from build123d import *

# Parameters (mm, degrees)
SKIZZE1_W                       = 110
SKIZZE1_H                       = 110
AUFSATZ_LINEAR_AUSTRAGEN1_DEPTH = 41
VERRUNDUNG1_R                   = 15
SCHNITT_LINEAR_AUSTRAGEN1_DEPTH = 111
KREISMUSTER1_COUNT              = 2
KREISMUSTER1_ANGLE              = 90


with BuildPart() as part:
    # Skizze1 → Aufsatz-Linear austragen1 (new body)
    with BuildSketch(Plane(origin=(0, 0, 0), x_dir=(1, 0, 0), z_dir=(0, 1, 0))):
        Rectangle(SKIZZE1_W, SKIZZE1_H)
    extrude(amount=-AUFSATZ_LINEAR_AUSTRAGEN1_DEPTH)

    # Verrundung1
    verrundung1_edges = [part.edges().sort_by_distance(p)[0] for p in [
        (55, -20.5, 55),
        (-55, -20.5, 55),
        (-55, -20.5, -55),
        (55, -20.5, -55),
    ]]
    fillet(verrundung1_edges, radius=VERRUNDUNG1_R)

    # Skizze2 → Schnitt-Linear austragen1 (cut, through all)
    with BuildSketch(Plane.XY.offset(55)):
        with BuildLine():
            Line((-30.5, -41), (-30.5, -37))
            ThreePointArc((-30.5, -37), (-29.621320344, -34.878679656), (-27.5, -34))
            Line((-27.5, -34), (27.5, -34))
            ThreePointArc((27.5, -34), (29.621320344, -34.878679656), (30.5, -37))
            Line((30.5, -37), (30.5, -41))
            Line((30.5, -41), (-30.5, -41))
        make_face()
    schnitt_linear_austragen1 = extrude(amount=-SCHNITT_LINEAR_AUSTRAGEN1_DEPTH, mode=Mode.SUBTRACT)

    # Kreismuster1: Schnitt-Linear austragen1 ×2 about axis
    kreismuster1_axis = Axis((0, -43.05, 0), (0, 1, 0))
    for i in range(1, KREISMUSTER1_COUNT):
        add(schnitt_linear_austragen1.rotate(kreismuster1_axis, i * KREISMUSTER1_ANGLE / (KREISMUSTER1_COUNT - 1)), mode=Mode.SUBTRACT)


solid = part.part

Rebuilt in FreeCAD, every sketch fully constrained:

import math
import FreeCAD as App
import Part
import Sketcher


def edges_at(feature, points):
    """Names of the edges that pass closest to the given points."""
    edges = feature.Shape.Edges
    near = lambda p: min(range(len(edges)), key=lambda i: edges[i].distToShape(Part.Vertex(*p))[0])
    return sorted({f"Edge{near(p) + 1}" for p in points})

doc = App.newDocument("Part")
body = doc.addObject("PartDesign::Body", "Body")

sketch1 = body.newObject("Sketcher::SketchObject", "Sketch")
sketch1.AttachmentSupport = (doc.getObject("XZ_Plane"), [""])
sketch1.MapMode = "FlatFace"
sketch1.addGeometry(Part.LineSegment(App.Vector(-55, -55, 0), App.Vector(-55, 55, 0)), False)
sketch1.addGeometry(Part.LineSegment(App.Vector(-55, 55, 0), App.Vector(55, 55, 0)), False)
sketch1.addGeometry(Part.LineSegment(App.Vector(55, 55, 0), App.Vector(55, -55, 0)), False)
sketch1.addGeometry(Part.LineSegment(App.Vector(55, -55, 0), App.Vector(-55, -55, 0)), False)
sketch1.addConstraint(Sketcher.Constraint("Coincident", 0, 2, 1, 1))
sketch1.addConstraint(Sketcher.Constraint("Coincident", 1, 2, 2, 1))
sketch1.addConstraint(Sketcher.Constraint("Coincident", 2, 2, 3, 1))
sketch1.addConstraint(Sketcher.Constraint("Coincident", 3, 2, 0, 1))
sketch1.addConstraint(Sketcher.Constraint("Vertical", 0))
sketch1.addConstraint(Sketcher.Constraint("Horizontal", 1))
sketch1.addConstraint(Sketcher.Constraint("Vertical", 2))
sketch1.addConstraint(Sketcher.Constraint("Horizontal", 3))
sketch1.addConstraint(Sketcher.Constraint("Symmetric", 0, 2, 2, 2, -1, 1))
sketch1.addConstraint(Sketcher.Constraint("Equal", 3, 0))
sketch1.addConstraint(Sketcher.Constraint("DistanceX", 1, 1, 1, 2, 110.0))
pad1 = body.newObject("PartDesign::Pad", "Pad")
pad1.Profile = sketch1
pad1.Length = 41
doc.recompute()

fillet = body.newObject("PartDesign::Fillet", "Fillet")
fillet.Base = (pad1, edges_at(pad1, [
    (55, -20.5, 55),
    (-55, -20.5, 55),
    (-55, -20.5, -55),
    (55, -20.5, -55),
]))
fillet.Radius = 15

sketch2 = body.newObject("Sketcher::SketchObject", "Sketch001")
sketch2.AttachmentSupport = (doc.getObject("XY_Plane"), [""])
sketch2.MapMode = "FlatFace"
sketch2.AttachmentOffset = App.Placement(App.Vector(0, 0, 55), App.Rotation())
sketch2.addGeometry(Part.LineSegment(App.Vector(-30.5, -37, 0), App.Vector(-30.5, -41, 0)), False)
sketch2.addGeometry(Part.LineSegment(App.Vector(-30.5, -41, 0), App.Vector(30.5, -41, 0)), False)
sketch2.addGeometry(Part.LineSegment(App.Vector(30.5, -41, 0), App.Vector(30.5, -37, 0)), False)
sketch2.addGeometry(Part.ArcOfCircle(Part.Circle(App.Vector(27.5, -37, 0), App.Vector(0, 0, 1), 3), math.radians(0), math.radians(90)), False)
sketch2.addGeometry(Part.LineSegment(App.Vector(27.5, -34, 0), App.Vector(-27.5, -34, 0)), False)
sketch2.addGeometry(Part.ArcOfCircle(Part.Circle(App.Vector(-27.5, -37, 0), App.Vector(0, 0, 1), 3), math.radians(90), math.radians(180)), False)
sketch2.addConstraint(Sketcher.Constraint("Coincident", 0, 2, 1, 1))
sketch2.addConstraint(Sketcher.Constraint("Coincident", 1, 2, 2, 1))
sketch2.addConstraint(Sketcher.Constraint("Tangent", 2, 2, 3, 1))
sketch2.addConstraint(Sketcher.Constraint("Tangent", 3, 2, 4, 1))
sketch2.addConstraint(Sketcher.Constraint("Tangent", 4, 2, 5, 1))
sketch2.addConstraint(Sketcher.Constraint("Tangent", 5, 2, 0, 1))
sketch2.addConstraint(Sketcher.Constraint("Vertical", 0))
sketch2.addConstraint(Sketcher.Constraint("Horizontal", 1))
sketch2.addConstraint(Sketcher.Constraint("Vertical", 2))
sketch2.addConstraint(Sketcher.Constraint("Horizontal", 4))
sketch2.addConstraint(Sketcher.Constraint("Equal", 3, 5))
sketch2.addConstraint(Sketcher.Constraint("Radius", 3, 3.0))
sketch2.addConstraint(Sketcher.Constraint("DistanceX", 1, 1, 1, 2, 61.0))
sketch2.addConstraint(Sketcher.Constraint("DistanceY", 0, 2, 0, 1, 4.0))
sketch2.addConstraint(Sketcher.Constraint("DistanceY", 3, 3, -1, 1, 37.0))
sketch2.addConstraint(Sketcher.Constraint("DistanceX", -1, 1, 3, 3, 27.5))
pocket1 = body.newObject("PartDesign::Pocket", "Pocket")
pocket1.Profile = sketch2
pocket1.Type = "ThroughAll"
doc.recompute()

polarpattern = body.newObject("PartDesign::PolarPattern", "PolarPattern")
polarpattern.Originals = [pocket1]
polarpattern.Axis = (doc.getObject("Y_Axis"), [""])
polarpattern.Angle = 90
polarpattern.Occurrences = 2
body.Tip = polarpattern

doc.recompute()
